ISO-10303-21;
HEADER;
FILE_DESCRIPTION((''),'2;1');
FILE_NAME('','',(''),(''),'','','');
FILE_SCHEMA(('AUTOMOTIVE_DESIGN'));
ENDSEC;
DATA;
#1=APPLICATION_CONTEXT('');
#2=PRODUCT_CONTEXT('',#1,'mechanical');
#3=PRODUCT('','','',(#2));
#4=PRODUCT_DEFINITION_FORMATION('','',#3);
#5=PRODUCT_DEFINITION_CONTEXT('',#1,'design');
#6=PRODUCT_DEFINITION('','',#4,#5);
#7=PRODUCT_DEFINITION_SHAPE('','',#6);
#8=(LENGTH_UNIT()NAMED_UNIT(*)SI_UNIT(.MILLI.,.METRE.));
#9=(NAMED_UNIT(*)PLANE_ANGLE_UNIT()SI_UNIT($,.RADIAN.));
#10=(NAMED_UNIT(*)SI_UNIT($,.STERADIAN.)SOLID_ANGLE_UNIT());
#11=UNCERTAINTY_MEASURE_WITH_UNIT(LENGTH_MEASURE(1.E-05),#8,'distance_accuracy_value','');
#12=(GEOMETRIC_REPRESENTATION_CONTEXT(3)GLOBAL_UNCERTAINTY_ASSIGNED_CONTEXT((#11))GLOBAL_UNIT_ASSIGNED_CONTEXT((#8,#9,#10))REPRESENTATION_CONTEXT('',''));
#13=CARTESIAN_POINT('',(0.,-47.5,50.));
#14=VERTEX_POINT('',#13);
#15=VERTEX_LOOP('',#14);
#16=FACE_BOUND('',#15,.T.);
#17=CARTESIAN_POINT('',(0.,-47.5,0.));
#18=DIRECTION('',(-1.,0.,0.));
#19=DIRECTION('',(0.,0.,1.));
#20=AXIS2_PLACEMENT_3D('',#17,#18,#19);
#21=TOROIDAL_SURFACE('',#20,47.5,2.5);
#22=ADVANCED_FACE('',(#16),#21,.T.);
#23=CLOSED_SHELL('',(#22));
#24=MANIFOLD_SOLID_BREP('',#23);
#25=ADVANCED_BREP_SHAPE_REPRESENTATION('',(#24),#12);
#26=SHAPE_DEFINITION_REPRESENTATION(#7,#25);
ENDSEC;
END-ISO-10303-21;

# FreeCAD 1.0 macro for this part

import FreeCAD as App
import Part
import Sketcher

V = App.Vector
Q = App.Units.Quantity

doc = App.newDocument("Part")
body = doc.addObject("PartDesign::Body", "Body")

# Sketch on XY plane
sketch1 = body.newObject("Sketcher::SketchObject", "Sketch")
sketch1.AttachmentSupport = (doc.getObject("XY_Plane"), [""])
sketch1.MapMode = "FlatFace"
sketch1.addGeometry(Part.Circle(V(0, 0, 0), V(0, 0, 1), 2.5), False)
sketch1.addGeometry(Part.LineSegment(V(0, -47.5, 0), V(10, -47.5, 0)), True)  # axis
sketch1.addConstraint([
    Sketcher.Constraint("Horizontal", 1),
    Sketcher.Constraint("Coincident", 0, 3, -1, 1),
    Sketcher.Constraint("PointOnObject", 1, 1, -2),
    Sketcher.Constraint("Diameter", 0, Q("5 mm")),
    Sketcher.Constraint("DistanceX", 1, 1, 1, 2, Q("10 mm")),
    Sketcher.Constraint("DistanceY", 1, 1, -1, 1, Q("47.5 mm")),
])
revolution = body.newObject("PartDesign::Revolution", "Revolution")
revolution.Profile = sketch1
revolution.ReferenceAxis = (sketch1, ["Axis0"])
revolution.Angle = 360

doc.recompute()
